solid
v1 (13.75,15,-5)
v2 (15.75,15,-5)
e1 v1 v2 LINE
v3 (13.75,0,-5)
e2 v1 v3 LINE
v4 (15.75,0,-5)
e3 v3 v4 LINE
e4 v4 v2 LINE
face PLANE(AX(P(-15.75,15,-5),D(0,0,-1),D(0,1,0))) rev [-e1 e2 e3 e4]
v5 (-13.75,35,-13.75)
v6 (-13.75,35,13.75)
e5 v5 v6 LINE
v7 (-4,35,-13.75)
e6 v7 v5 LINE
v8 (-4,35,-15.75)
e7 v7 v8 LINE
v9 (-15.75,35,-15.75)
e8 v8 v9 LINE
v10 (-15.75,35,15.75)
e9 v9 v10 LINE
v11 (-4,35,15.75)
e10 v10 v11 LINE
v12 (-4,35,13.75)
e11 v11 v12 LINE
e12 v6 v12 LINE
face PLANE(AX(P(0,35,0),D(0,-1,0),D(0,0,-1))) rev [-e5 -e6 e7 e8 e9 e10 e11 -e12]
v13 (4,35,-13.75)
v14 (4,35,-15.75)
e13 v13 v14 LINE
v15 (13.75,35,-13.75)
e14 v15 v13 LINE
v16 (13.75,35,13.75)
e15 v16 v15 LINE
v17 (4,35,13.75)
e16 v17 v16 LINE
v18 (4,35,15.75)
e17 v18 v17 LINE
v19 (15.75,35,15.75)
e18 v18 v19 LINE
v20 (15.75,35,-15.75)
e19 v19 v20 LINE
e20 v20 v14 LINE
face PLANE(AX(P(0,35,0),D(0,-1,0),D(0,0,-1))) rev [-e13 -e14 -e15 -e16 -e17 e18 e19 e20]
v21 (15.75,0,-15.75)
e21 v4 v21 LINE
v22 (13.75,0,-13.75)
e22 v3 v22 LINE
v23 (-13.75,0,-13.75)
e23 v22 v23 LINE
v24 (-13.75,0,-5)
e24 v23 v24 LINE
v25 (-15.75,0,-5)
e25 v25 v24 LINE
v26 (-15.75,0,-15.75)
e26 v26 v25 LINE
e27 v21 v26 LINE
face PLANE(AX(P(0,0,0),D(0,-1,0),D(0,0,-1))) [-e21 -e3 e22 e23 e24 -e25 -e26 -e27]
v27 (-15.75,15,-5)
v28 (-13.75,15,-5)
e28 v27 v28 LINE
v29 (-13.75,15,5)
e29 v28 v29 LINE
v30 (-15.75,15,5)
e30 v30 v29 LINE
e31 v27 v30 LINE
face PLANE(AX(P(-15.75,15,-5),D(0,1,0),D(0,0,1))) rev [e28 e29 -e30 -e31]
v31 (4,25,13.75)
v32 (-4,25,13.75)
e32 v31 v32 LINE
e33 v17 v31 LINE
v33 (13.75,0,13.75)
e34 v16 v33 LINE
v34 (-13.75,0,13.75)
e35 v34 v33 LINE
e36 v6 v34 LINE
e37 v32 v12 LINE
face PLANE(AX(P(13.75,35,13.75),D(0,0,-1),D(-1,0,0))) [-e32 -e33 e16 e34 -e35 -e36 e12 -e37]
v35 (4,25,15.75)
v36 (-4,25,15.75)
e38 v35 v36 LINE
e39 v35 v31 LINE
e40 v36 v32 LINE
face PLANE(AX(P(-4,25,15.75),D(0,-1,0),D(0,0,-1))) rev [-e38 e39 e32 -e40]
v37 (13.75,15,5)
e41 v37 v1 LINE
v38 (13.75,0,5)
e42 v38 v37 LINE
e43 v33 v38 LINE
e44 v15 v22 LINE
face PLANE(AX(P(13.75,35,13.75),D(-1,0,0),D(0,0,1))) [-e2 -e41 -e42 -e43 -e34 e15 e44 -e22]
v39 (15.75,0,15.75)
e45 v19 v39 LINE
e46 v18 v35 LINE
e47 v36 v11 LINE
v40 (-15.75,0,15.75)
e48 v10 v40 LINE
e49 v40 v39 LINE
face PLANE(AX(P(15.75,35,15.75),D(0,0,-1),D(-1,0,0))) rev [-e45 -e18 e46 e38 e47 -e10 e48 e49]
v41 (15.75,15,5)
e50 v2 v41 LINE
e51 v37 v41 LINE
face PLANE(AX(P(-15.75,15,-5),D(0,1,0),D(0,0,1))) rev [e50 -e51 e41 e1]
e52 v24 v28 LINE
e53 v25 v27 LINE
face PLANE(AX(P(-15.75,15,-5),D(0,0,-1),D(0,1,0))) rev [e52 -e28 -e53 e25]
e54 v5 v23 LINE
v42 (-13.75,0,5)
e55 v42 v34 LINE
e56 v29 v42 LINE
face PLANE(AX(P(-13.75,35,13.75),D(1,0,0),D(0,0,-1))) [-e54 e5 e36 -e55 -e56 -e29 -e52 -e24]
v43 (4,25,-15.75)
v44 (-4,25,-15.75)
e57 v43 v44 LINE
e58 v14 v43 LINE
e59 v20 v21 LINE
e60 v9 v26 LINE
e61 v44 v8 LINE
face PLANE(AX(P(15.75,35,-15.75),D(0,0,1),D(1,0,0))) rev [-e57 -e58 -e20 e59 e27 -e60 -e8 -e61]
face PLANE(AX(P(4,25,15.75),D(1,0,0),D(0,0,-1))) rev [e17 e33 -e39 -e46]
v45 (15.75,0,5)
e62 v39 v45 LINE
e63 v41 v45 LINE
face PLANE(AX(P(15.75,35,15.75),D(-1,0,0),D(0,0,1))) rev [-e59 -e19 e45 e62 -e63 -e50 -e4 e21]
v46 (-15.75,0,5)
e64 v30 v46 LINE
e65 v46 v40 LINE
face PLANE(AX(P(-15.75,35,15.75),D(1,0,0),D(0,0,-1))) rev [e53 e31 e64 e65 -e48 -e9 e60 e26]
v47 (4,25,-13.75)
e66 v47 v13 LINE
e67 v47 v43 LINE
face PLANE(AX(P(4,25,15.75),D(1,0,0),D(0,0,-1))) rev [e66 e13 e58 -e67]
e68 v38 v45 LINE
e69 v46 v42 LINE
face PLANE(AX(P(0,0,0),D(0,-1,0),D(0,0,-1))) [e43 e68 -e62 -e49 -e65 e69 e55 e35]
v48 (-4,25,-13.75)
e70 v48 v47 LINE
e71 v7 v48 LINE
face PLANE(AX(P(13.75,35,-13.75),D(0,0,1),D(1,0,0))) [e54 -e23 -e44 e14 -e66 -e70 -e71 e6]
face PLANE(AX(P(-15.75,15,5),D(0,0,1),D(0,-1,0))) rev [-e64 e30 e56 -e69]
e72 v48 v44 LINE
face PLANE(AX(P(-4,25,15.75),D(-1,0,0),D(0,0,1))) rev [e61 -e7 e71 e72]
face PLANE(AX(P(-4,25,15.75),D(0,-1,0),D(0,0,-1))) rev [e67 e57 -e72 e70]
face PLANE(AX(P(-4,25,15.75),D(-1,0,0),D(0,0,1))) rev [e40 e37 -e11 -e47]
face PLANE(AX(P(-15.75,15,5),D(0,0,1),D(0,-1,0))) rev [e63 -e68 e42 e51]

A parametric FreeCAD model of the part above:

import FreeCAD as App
import Part
import Sketcher

V = App.Vector
Q = App.Units.Quantity


def add_polygon(sketch, points):
    """Adds a closed chain of lines whose ends are joined by coincident constraints."""
    first, n = sketch.GeometryCount, len(points)
    for a, b in zip(points, points[1:] + points[:1]):
        sketch.addGeometry(Part.LineSegment(App.Vector(*a, 0), App.Vector(*b, 0)), False)
    for i in range(n):
        sketch.addConstraint(Sketcher.Constraint("Coincident", first + i, 2, first + (i + 1) % n, 1))

doc = App.newDocument("Part")
body = doc.addObject("PartDesign::Body", "Body")

# Sketch on XZ plane
sketch1 = body.newObject("Sketcher::SketchObject", "Sketch")
sketch1.AttachmentSupport = (doc.getObject("XZ_Plane"), [""])
sketch1.MapMode = "FlatFace"
add_polygon(sketch1, [(-16, -16), (-16, 16), (16, 16), (16, -16)])  # lines 0-3
add_polygon(sketch1, [(14, 14), (-14, 14), (-14, -14), (14, -14)])  # lines 4-7
sketch1.addConstraint(Sketcher.Constraint("Vertical", 0))
sketch1.addConstraint(Sketcher.Constraint("Horizontal", 1))
sketch1.addConstraint(Sketcher.Constraint("Vertical", 2))
sketch1.addConstraint(Sketcher.Constraint("Horizontal", 3))
sketch1.addConstraint(Sketcher.Constraint("Horizontal", 4))
sketch1.addConstraint(Sketcher.Constraint("Vertical", 5))
sketch1.addConstraint(Sketcher.Constraint("Horizontal", 6))
sketch1.addConstraint(Sketcher.Constraint("Vertical", 7))
sketch1.addConstraint(Sketcher.Constraint("Symmetric", 0, 2, 2, 2, -1, 1))
sketch1.addConstraint(Sketcher.Constraint("Symmetric", 4, 2, 6, 2, -1, 1))
sketch1.addConstraint(Sketcher.Constraint("Equal", 3, 0))
sketch1.addConstraint(Sketcher.Constraint("Equal", 6, 5))
sketch1.addConstraint(Sketcher.Constraint("DistanceX", 1, 1, 1, 2, Q("31.5 mm")))
sketch1.addConstraint(Sketcher.Constraint("DistanceX", 4, 2, 4, 1, Q("27.5 mm")))
pad1 = body.newObject("PartDesign::Pad", "Pad")
pad1.Profile = sketch1
pad1.Length = 35
pad1.Reversed = True

# Sketch on YZ plane
sketch2 = body.newObject("Sketcher::SketchObject", "Sketch001")
sketch2.AttachmentSupport = (doc.getObject("YZ_Plane"), [""])
sketch2.MapMode = "FlatFace"
sketch2.AttachmentOffset = App.Placement(V(0, 0, 15.75), App.Rotation())
add_polygon(sketch2, [(15, 5), (0, 5), (0, -5), (15, -5)])  # lines 0-3
sketch2.addConstraint(Sketcher.Constraint("Horizontal", 0))
sketch2.addConstraint(Sketcher.Constraint("Vertical", 1))
sketch2.addConstraint(Sketcher.Constraint("Horizontal", 2))
sketch2.addConstraint(Sketcher.Constraint("Vertical", 3))
sketch2.addConstraint(Sketcher.Constraint("Symmetric", 0, 2, 1, 2, -1, 1))
sketch2.addConstraint(Sketcher.Constraint("DistanceX", 0, 2, 0, 1, Q("15 mm")))
sketch2.addConstraint(Sketcher.Constraint("DistanceY", 1, 2, 1, 1, Q("10 mm")))
pocket1 = body.newObject("PartDesign::Pocket", "Pocket")
pocket1.Profile = sketch2
pocket1.Type = "ThroughAll"

# Sketch on XY plane
sketch3 = body.newObject("Sketcher::SketchObject", "Sketch002")
sketch3.AttachmentSupport = (doc.getObject("XY_Plane"), [""])
sketch3.MapMode = "FlatFace"
sketch3.AttachmentOffset = App.Placement(V(0, 0, -15.75), App.Rotation())
add_polygon(sketch3, [(4, 35), (4, 25), (-4, 25), (-4, 35)])  # lines 0-3
sketch3.addConstraint(Sketcher.Constraint("Vertical", 0))
sketch3.addConstraint(Sketcher.Constraint("Horizontal", 1))
sketch3.addConstraint(Sketcher.Constraint("Vertical", 2))
sketch3.addConstraint(Sketcher.Constraint("Horizontal", 3))
sketch3.addConstraint(Sketcher.Constraint("DistanceX", 1, 2, 1, 1, Q("8 mm")))
sketch3.addConstraint(Sketcher.Constraint("DistanceY", 0, 2, 0, 1, Q("10 mm")))
sketch3.addConstraint(Sketcher.Constraint("DistanceX", -1, 1, 0, 2, Q("4 mm")))
sketch3.addConstraint(Sketcher.Constraint("DistanceY", -1, 1, 0, 2, Q("25 mm")))
pocket2 = body.newObject("PartDesign::Pocket", "Pocket001")
pocket2.Profile = sketch3
pocket2.Type = "ThroughAll"
pocket2.Reversed = True

doc.recompute()
